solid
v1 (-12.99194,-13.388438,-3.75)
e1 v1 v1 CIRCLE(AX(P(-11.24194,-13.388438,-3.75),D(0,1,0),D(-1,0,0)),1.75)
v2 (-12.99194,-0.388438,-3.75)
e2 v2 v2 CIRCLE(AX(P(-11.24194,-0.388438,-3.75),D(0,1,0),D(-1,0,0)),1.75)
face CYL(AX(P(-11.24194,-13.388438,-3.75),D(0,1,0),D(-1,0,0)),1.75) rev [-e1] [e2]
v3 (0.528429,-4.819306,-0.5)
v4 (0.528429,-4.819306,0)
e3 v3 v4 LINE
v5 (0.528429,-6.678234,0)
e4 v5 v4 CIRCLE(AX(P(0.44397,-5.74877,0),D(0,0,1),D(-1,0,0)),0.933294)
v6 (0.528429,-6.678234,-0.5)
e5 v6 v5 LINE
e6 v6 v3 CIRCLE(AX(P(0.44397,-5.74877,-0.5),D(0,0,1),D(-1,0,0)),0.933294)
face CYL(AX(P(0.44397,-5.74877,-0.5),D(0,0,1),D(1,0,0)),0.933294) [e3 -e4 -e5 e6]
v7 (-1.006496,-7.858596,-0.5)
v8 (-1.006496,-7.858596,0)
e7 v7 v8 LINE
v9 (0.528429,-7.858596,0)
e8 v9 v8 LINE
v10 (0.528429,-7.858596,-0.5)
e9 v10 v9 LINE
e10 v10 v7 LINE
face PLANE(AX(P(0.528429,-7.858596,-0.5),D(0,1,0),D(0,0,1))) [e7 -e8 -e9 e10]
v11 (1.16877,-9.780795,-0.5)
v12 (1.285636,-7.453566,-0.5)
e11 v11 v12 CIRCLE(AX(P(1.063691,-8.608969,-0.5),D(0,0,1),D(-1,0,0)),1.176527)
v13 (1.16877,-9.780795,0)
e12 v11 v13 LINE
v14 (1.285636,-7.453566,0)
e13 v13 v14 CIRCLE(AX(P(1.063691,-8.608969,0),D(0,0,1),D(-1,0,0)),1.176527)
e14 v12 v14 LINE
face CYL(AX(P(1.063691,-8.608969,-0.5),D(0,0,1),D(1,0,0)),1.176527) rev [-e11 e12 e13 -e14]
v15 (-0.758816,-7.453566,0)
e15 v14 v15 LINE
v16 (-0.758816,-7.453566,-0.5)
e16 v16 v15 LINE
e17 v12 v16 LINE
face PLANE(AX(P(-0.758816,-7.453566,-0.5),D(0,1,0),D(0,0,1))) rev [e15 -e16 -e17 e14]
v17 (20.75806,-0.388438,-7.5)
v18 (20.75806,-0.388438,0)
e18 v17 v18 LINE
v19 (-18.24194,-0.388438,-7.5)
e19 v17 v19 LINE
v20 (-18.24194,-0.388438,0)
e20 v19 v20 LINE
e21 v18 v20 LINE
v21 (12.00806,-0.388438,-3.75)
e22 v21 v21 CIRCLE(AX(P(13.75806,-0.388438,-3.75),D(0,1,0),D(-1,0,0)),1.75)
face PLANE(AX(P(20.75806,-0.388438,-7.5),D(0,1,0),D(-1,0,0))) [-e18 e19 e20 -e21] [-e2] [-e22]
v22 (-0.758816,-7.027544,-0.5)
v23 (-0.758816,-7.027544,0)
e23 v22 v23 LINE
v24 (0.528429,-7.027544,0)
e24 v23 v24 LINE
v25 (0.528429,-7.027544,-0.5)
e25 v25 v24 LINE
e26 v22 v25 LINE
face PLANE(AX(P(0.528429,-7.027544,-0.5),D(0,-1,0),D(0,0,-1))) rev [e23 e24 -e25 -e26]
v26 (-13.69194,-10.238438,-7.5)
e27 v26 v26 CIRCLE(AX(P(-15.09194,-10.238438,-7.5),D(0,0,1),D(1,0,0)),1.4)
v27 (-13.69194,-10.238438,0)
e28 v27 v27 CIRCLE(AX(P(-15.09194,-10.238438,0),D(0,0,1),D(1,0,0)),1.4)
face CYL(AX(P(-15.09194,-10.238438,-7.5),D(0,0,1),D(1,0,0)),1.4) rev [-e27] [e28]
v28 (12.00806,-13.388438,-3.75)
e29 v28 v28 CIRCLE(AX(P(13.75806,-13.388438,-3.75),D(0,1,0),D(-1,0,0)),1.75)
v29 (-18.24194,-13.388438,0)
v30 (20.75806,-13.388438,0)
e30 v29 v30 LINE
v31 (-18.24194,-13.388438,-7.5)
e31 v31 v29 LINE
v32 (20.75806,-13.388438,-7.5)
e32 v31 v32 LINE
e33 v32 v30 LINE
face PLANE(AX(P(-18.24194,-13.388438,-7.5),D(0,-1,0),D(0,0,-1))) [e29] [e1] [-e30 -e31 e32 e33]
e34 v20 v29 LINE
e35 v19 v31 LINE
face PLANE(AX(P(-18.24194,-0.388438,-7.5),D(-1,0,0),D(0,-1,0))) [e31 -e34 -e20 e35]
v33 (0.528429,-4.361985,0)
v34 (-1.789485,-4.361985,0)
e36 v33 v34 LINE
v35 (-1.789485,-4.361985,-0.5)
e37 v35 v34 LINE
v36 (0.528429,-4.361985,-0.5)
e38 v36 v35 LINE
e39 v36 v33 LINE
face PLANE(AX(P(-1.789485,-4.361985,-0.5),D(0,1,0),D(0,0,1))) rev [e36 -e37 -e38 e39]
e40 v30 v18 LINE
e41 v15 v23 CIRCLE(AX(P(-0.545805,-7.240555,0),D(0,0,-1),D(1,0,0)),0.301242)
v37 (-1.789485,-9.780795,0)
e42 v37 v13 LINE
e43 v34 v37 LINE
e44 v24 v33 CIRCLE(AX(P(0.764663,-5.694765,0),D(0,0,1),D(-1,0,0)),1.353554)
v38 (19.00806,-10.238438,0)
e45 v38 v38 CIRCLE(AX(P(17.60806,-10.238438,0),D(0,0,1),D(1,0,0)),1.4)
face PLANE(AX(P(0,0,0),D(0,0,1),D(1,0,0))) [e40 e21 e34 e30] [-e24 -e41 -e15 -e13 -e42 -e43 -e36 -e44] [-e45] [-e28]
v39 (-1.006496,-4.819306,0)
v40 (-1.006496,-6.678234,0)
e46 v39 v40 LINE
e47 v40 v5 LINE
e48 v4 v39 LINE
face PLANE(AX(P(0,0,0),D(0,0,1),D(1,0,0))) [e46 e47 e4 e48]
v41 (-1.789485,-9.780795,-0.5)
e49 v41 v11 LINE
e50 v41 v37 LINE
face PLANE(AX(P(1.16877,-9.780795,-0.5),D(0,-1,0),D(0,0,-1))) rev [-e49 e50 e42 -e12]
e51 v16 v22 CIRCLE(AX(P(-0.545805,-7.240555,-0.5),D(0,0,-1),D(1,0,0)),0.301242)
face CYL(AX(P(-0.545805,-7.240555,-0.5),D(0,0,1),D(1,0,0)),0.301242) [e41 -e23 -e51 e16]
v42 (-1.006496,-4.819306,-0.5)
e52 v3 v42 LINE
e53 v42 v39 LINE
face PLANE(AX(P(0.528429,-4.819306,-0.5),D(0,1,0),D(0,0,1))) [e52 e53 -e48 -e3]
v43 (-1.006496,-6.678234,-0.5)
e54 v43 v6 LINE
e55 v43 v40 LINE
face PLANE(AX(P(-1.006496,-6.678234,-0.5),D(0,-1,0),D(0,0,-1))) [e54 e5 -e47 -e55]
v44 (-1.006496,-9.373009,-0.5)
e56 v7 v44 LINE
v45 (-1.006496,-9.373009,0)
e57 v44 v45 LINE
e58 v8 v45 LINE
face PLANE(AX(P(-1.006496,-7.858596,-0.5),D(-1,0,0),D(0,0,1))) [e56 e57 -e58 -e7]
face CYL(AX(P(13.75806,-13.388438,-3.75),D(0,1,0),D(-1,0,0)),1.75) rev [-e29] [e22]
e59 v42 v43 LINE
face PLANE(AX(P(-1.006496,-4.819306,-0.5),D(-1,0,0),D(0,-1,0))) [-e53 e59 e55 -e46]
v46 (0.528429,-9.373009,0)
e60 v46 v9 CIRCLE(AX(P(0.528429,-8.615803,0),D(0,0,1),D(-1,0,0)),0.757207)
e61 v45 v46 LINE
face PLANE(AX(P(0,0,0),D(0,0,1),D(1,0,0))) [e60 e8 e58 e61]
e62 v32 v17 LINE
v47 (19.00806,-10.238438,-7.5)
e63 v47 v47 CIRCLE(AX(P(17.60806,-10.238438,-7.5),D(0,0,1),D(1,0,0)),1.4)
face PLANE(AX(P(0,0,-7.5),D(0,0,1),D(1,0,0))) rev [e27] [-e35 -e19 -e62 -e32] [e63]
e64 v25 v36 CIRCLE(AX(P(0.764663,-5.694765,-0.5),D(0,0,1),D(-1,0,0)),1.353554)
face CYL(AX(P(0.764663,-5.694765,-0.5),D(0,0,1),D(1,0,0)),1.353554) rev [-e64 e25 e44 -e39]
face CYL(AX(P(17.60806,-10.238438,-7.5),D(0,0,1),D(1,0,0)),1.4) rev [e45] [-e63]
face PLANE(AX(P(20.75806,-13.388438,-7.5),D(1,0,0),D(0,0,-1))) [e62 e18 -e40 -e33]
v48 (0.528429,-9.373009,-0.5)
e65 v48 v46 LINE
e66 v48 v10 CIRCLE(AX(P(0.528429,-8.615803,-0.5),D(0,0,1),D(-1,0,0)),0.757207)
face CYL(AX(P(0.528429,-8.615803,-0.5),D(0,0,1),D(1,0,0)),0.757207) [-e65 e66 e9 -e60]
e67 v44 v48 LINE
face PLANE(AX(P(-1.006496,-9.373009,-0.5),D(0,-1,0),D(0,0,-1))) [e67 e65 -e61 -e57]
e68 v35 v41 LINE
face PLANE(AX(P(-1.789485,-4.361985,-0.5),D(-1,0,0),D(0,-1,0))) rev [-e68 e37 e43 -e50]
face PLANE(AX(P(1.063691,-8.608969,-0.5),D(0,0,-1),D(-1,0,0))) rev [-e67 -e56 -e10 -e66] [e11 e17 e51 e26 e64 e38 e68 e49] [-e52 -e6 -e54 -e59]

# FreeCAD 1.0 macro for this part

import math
import FreeCAD as App
import Part
import Sketcher

doc = App.newDocument("Part")
body = doc.addObject("PartDesign::Body", "Body")

# Sketch on XY plane
sketch1 = body.newObject("Sketcher::SketchObject", "Sketch")
sketch1.AttachmentSupport = (doc.getObject("XY_Plane"), [""])
sketch1.MapMode = "FlatFace"
sketch1.addGeometry([
    Part.LineSegment(App.Vector(-18.24194, -0.388438, 0), App.Vector(-18.24194, -13.388438, 0)),  # 0
    Part.LineSegment(App.Vector(-18.24194, -13.388438, 0), App.Vector(20.75806, -13.388438, 0)),  # 1
    Part.LineSegment(App.Vector(20.75806, -13.388438, 0), App.Vector(20.75806, -0.388438, 0)),  # 2
    Part.LineSegment(App.Vector(20.75806, -0.388438, 0), App.Vector(-18.24194, -0.388438, 0)),  # 3
    Part.Circle(App.Vector(-15.09194, -10.238438, 0), App.Vector(0, 0, 1), 1.4),  # 4
    Part.Circle(App.Vector(17.60806, -10.238438, 0), App.Vector(0, 0, 1), 1.4),  # 5
], False)
sketch1.addConstraint([
    Sketcher.Constraint("Coincident", 0, 2, 1, 1),
    Sketcher.Constraint("Coincident", 1, 2, 2, 1),
    Sketcher.Constraint("Coincident", 2, 2, 3, 1),
    Sketcher.Constraint("Coincident", 3, 2, 0, 1),
    Sketcher.Constraint("Vertical", 0),
    Sketcher.Constraint("Horizontal", 1),
    Sketcher.Constraint("Vertical", 2),
    Sketcher.Constraint("Horizontal", 3),
    Sketcher.Constraint("Equal", 4, 5),
    Sketcher.Constraint("Horizontal", 4, 3, 5, 3),
    Sketcher.Constraint("Diameter", 4, 2.8),
    Sketcher.Constraint("DistanceX", 1, 1, 1, 2, 39.0),
    Sketcher.Constraint("DistanceY", 0, 2, 0, 1, 13.0),
    Sketcher.Constraint("DistanceX", 4, 3, 5, 3, 32.7),
    Sketcher.Constraint("DistanceX", 0, 2, 4, 3, 3.15),
    Sketcher.Constraint("DistanceY", 0, 2, 4, 3, 3.15),
    Sketcher.Constraint("DistanceX", 4, 3, -1, 1, 15.09194),
    Sketcher.Constraint("DistanceY", 4, 3, -1, 1, 10.238438),
])
pad1 = body.newObject("PartDesign::Pad", "Pad")
pad1.Profile = sketch1
pad1.Length = 7.5
pad1.Reversed = True

# Sketch on XZ plane
sketch2 = body.newObject("Sketcher::SketchObject", "Sketch001")
sketch2.AttachmentSupport = (doc.getObject("XZ_Plane"), [""])
sketch2.MapMode = "FlatFace"
sketch2.AttachmentOffset = App.Placement(App.Vector(0, 0, 0.388438), App.Rotation())
sketch2.addGeometry([
    Part.Circle(App.Vector(-11.24194, -3.75, 0), App.Vector(0, 0, 1), 1.75),
    Part.Circle(App.Vector(13.75806, -3.75, 0), App.Vector(0, 0, 1), 1.75),
], False)
sketch2.addConstraint([
    Sketcher.Constraint("Equal", 0, 1),
    Sketcher.Constraint("Horizontal", 0, 3, 1, 3),
    Sketcher.Constraint("Diameter", 0, 3.5),
    Sketcher.Constraint("DistanceX", 0, 3, 1, 3, 25.0),
    Sketcher.Constraint("DistanceY", 0, 3, -1, 1, 3.75),
    Sketcher.Constraint("DistanceX", 0, 3, -1, 1, 11.24194),
])
pocket1 = body.newObject("PartDesign::Pocket", "Pocket")
pocket1.Profile = sketch2
pocket1.Type = "ThroughAll"
pocket1.Reversed = True

# Sketch on XY plane
sketch3 = body.newObject("Sketcher::SketchObject", "Sketch002")
sketch3.AttachmentSupport = (doc.getObject("XY_Plane"), [""])
sketch3.MapMode = "FlatFace"
sketch3.addGeometry([
    Part.LineSegment(App.Vector(0.528429, -4.361985, 0), App.Vector(-1.789485, -4.361985, 0)),  # 0
    Part.LineSegment(App.Vector(-1.789485, -4.361985, 0), App.Vector(-1.789485, -9.780795, 0)),  # 1
    Part.LineSegment(App.Vector(-1.789485, -9.780795, 0), App.Vector(1.16877, -9.780795, 0)),  # 2
    Part.ArcOfCircle(Part.Circle(App.Vector(1.063691, -8.608969, 0), App.Vector(0, 0, 1), 1.176527), math.radians(-84.875937), math.radians(79.126331)),  # 3
    Part.LineSegment(App.Vector(1.285636, -7.453566, 0), App.Vector(-0.758816, -7.453566, 0)),  # 4
    Part.ArcOfCircle(Part.Circle(App.Vector(-0.545805, -7.240555, 0), App.Vector(0, 0, 1), 0.301242), math.radians(135), math.radians(225)),  # 5
    Part.LineSegment(App.Vector(-0.758816, -7.027544, 0), App.Vector(0.528429, -7.027544, 0)),  # 6
    Part.ArcOfCircle(Part.Circle(App.Vector(0.764663, -5.694765, 0), App.Vector(0, 0, 1), 1.353554), math.radians(-100.051204), math.radians(100.051204)),  # 7
    Part.LineSegment(App.Vector(-1.006496, -7.858596, 0), App.Vector(0.528429, -7.858596, 0)),  # 8
    Part.ArcOfCircle(Part.Circle(App.Vector(0.528429, -8.615803, 0), App.Vector(0, 0, 1), 0.757207), math.radians(-90), math.radians(90)),  # 9
    Part.LineSegment(App.Vector(0.528429, -9.373009, 0), App.Vector(-1.006496, -9.373009, 0)),  # 10
    Part.LineSegment(App.Vector(-1.006496, -9.373009, 0), App.Vector(-1.006496, -7.858596, 0)),  # 11
    Part.LineSegment(App.Vector(-1.006496, -4.819306, 0), App.Vector(0.528429, -4.819306, 0)),  # 12
    Part.ArcOfCircle(Part.Circle(App.Vector(0.44397, -5.74877, 0), App.Vector(0, 0, 1), 0.933294), math.radians(-84.807854), math.radians(84.807854)),  # 13
    Part.LineSegment(App.Vector(0.528429, -6.678234, 0), App.Vector(-1.006496, -6.678234, 0)),  # 14
    Part.LineSegment(App.Vector(-1.006496, -6.678234, 0), App.Vector(-1.006496, -4.819306, 0)),  # 15
], False)
sketch3.addConstraint([
    Sketcher.Constraint("Coincident", 0, 2, 1, 1),
    Sketcher.Constraint("Coincident", 1, 2, 2, 1),
    Sketcher.Constraint("Coincident", 2, 2, 3, 1),
    Sketcher.Constraint("Coincident", 3, 2, 4, 1),
    Sketcher.Constraint("Coincident", 4, 2, 5, 2),
    Sketcher.Constraint("Coincident", 5, 1, 6, 1),
    Sketcher.Constraint("Coincident", 6, 2, 7, 1),
    Sketcher.Constraint("Coincident", 7, 2, 0, 1),
    Sketcher.Constraint("Tangent", 8, 2, 9, 2),
    Sketcher.Constraint("Tangent", 9, 1, 10, 1),
    Sketcher.Constraint("Coincident", 10, 2, 11, 1),
    Sketcher.Constraint("Coincident", 11, 2, 8, 1),
    Sketcher.Constraint("Coincident", 12, 2, 13, 2),
    Sketcher.Constraint("Coincident", 13, 1, 14, 1),
    Sketcher.Constraint("Coincident", 14, 2, 15, 1),
    Sketcher.Constraint("Coincident", 15, 2, 12, 1),
    Sketcher.Constraint("Horizontal", 0),
    Sketcher.Constraint("Vertical", 1),
    Sketcher.Constraint("Horizontal", 2),
    Sketcher.Constraint("Horizontal", 4),
    Sketcher.Constraint("Horizontal", 6),
    Sketcher.Constraint("Horizontal", 8),
    Sketcher.Constraint("Horizontal", 10),
    Sketcher.Constraint("Vertical", 11),
    Sketcher.Constraint("Horizontal", 12),
    Sketcher.Constraint("Horizontal", 14),
    Sketcher.Constraint("Vertical", 15),
    Sketcher.Constraint("Vertical", 4, 2, 5, 1),
    Sketcher.Constraint("Vertical", 9, 3, 6, 2),
    Sketcher.Constraint("Vertical", 6, 2, 7, 2),
    Sketcher.Constraint("Vertical", 9, 1, 12, 2),
    Sketcher.Constraint("Vertical", 12, 2, 13, 1),
    Sketcher.Constraint("Vertical", 11, 2, 14, 2),
    Sketcher.Constraint("Radius", 3, 1.176527),
    Sketcher.Constraint("Radius", 5, 0.301242),
    Sketcher.Constraint("Radius", 7, 1.353554),
    Sketcher.Constraint("Radius", 9, 0.757207),
    Sketcher.Constraint("Radius", 13, 0.933294),
    Sketcher.Constraint("DistanceX", 4, 2, 4, 1, 2.044452),
    Sketcher.Constraint("DistanceY", 1, 2, 1, 1, 5.41881),
    Sketcher.Constraint("DistanceY", 15, 1, 15, 2, 1.858929),
    Sketcher.Constraint("DistanceY", 3, 3, 13, 3, 2.860199),
    Sketcher.Constraint("DistanceX", 13, 3, 2, 2, 0.7248),
    Sketcher.Constraint("DistanceY", 3, 2, 7, 3, 1.758801),
    Sketcher.Constraint("DistanceX", 0, 2, 0, 1, 2.317914),
    Sketcher.Constraint("DistanceX", 6, 1, 6, 2, 1.287245),
    Sketcher.Constraint("DistanceX", 8, 1, 8, 2, 1.534926),
    Sketcher.Constraint("DistanceX", -1, 1, 3, 3, 1.063691),
    Sketcher.Constraint("DistanceY", 3, 3, -1, 1, 8.608969),
    Sketcher.Constraint("DistanceX", -1, 1, 9, 3, 0.528429),
    Sketcher.Constraint("DistanceY", 9, 1, -1, 1, 9.373009),
])
pocket2 = body.newObject("PartDesign::Pocket", "Pocket001")
pocket2.Profile = sketch3
pocket2.Length = 0.5

doc.recompute()
